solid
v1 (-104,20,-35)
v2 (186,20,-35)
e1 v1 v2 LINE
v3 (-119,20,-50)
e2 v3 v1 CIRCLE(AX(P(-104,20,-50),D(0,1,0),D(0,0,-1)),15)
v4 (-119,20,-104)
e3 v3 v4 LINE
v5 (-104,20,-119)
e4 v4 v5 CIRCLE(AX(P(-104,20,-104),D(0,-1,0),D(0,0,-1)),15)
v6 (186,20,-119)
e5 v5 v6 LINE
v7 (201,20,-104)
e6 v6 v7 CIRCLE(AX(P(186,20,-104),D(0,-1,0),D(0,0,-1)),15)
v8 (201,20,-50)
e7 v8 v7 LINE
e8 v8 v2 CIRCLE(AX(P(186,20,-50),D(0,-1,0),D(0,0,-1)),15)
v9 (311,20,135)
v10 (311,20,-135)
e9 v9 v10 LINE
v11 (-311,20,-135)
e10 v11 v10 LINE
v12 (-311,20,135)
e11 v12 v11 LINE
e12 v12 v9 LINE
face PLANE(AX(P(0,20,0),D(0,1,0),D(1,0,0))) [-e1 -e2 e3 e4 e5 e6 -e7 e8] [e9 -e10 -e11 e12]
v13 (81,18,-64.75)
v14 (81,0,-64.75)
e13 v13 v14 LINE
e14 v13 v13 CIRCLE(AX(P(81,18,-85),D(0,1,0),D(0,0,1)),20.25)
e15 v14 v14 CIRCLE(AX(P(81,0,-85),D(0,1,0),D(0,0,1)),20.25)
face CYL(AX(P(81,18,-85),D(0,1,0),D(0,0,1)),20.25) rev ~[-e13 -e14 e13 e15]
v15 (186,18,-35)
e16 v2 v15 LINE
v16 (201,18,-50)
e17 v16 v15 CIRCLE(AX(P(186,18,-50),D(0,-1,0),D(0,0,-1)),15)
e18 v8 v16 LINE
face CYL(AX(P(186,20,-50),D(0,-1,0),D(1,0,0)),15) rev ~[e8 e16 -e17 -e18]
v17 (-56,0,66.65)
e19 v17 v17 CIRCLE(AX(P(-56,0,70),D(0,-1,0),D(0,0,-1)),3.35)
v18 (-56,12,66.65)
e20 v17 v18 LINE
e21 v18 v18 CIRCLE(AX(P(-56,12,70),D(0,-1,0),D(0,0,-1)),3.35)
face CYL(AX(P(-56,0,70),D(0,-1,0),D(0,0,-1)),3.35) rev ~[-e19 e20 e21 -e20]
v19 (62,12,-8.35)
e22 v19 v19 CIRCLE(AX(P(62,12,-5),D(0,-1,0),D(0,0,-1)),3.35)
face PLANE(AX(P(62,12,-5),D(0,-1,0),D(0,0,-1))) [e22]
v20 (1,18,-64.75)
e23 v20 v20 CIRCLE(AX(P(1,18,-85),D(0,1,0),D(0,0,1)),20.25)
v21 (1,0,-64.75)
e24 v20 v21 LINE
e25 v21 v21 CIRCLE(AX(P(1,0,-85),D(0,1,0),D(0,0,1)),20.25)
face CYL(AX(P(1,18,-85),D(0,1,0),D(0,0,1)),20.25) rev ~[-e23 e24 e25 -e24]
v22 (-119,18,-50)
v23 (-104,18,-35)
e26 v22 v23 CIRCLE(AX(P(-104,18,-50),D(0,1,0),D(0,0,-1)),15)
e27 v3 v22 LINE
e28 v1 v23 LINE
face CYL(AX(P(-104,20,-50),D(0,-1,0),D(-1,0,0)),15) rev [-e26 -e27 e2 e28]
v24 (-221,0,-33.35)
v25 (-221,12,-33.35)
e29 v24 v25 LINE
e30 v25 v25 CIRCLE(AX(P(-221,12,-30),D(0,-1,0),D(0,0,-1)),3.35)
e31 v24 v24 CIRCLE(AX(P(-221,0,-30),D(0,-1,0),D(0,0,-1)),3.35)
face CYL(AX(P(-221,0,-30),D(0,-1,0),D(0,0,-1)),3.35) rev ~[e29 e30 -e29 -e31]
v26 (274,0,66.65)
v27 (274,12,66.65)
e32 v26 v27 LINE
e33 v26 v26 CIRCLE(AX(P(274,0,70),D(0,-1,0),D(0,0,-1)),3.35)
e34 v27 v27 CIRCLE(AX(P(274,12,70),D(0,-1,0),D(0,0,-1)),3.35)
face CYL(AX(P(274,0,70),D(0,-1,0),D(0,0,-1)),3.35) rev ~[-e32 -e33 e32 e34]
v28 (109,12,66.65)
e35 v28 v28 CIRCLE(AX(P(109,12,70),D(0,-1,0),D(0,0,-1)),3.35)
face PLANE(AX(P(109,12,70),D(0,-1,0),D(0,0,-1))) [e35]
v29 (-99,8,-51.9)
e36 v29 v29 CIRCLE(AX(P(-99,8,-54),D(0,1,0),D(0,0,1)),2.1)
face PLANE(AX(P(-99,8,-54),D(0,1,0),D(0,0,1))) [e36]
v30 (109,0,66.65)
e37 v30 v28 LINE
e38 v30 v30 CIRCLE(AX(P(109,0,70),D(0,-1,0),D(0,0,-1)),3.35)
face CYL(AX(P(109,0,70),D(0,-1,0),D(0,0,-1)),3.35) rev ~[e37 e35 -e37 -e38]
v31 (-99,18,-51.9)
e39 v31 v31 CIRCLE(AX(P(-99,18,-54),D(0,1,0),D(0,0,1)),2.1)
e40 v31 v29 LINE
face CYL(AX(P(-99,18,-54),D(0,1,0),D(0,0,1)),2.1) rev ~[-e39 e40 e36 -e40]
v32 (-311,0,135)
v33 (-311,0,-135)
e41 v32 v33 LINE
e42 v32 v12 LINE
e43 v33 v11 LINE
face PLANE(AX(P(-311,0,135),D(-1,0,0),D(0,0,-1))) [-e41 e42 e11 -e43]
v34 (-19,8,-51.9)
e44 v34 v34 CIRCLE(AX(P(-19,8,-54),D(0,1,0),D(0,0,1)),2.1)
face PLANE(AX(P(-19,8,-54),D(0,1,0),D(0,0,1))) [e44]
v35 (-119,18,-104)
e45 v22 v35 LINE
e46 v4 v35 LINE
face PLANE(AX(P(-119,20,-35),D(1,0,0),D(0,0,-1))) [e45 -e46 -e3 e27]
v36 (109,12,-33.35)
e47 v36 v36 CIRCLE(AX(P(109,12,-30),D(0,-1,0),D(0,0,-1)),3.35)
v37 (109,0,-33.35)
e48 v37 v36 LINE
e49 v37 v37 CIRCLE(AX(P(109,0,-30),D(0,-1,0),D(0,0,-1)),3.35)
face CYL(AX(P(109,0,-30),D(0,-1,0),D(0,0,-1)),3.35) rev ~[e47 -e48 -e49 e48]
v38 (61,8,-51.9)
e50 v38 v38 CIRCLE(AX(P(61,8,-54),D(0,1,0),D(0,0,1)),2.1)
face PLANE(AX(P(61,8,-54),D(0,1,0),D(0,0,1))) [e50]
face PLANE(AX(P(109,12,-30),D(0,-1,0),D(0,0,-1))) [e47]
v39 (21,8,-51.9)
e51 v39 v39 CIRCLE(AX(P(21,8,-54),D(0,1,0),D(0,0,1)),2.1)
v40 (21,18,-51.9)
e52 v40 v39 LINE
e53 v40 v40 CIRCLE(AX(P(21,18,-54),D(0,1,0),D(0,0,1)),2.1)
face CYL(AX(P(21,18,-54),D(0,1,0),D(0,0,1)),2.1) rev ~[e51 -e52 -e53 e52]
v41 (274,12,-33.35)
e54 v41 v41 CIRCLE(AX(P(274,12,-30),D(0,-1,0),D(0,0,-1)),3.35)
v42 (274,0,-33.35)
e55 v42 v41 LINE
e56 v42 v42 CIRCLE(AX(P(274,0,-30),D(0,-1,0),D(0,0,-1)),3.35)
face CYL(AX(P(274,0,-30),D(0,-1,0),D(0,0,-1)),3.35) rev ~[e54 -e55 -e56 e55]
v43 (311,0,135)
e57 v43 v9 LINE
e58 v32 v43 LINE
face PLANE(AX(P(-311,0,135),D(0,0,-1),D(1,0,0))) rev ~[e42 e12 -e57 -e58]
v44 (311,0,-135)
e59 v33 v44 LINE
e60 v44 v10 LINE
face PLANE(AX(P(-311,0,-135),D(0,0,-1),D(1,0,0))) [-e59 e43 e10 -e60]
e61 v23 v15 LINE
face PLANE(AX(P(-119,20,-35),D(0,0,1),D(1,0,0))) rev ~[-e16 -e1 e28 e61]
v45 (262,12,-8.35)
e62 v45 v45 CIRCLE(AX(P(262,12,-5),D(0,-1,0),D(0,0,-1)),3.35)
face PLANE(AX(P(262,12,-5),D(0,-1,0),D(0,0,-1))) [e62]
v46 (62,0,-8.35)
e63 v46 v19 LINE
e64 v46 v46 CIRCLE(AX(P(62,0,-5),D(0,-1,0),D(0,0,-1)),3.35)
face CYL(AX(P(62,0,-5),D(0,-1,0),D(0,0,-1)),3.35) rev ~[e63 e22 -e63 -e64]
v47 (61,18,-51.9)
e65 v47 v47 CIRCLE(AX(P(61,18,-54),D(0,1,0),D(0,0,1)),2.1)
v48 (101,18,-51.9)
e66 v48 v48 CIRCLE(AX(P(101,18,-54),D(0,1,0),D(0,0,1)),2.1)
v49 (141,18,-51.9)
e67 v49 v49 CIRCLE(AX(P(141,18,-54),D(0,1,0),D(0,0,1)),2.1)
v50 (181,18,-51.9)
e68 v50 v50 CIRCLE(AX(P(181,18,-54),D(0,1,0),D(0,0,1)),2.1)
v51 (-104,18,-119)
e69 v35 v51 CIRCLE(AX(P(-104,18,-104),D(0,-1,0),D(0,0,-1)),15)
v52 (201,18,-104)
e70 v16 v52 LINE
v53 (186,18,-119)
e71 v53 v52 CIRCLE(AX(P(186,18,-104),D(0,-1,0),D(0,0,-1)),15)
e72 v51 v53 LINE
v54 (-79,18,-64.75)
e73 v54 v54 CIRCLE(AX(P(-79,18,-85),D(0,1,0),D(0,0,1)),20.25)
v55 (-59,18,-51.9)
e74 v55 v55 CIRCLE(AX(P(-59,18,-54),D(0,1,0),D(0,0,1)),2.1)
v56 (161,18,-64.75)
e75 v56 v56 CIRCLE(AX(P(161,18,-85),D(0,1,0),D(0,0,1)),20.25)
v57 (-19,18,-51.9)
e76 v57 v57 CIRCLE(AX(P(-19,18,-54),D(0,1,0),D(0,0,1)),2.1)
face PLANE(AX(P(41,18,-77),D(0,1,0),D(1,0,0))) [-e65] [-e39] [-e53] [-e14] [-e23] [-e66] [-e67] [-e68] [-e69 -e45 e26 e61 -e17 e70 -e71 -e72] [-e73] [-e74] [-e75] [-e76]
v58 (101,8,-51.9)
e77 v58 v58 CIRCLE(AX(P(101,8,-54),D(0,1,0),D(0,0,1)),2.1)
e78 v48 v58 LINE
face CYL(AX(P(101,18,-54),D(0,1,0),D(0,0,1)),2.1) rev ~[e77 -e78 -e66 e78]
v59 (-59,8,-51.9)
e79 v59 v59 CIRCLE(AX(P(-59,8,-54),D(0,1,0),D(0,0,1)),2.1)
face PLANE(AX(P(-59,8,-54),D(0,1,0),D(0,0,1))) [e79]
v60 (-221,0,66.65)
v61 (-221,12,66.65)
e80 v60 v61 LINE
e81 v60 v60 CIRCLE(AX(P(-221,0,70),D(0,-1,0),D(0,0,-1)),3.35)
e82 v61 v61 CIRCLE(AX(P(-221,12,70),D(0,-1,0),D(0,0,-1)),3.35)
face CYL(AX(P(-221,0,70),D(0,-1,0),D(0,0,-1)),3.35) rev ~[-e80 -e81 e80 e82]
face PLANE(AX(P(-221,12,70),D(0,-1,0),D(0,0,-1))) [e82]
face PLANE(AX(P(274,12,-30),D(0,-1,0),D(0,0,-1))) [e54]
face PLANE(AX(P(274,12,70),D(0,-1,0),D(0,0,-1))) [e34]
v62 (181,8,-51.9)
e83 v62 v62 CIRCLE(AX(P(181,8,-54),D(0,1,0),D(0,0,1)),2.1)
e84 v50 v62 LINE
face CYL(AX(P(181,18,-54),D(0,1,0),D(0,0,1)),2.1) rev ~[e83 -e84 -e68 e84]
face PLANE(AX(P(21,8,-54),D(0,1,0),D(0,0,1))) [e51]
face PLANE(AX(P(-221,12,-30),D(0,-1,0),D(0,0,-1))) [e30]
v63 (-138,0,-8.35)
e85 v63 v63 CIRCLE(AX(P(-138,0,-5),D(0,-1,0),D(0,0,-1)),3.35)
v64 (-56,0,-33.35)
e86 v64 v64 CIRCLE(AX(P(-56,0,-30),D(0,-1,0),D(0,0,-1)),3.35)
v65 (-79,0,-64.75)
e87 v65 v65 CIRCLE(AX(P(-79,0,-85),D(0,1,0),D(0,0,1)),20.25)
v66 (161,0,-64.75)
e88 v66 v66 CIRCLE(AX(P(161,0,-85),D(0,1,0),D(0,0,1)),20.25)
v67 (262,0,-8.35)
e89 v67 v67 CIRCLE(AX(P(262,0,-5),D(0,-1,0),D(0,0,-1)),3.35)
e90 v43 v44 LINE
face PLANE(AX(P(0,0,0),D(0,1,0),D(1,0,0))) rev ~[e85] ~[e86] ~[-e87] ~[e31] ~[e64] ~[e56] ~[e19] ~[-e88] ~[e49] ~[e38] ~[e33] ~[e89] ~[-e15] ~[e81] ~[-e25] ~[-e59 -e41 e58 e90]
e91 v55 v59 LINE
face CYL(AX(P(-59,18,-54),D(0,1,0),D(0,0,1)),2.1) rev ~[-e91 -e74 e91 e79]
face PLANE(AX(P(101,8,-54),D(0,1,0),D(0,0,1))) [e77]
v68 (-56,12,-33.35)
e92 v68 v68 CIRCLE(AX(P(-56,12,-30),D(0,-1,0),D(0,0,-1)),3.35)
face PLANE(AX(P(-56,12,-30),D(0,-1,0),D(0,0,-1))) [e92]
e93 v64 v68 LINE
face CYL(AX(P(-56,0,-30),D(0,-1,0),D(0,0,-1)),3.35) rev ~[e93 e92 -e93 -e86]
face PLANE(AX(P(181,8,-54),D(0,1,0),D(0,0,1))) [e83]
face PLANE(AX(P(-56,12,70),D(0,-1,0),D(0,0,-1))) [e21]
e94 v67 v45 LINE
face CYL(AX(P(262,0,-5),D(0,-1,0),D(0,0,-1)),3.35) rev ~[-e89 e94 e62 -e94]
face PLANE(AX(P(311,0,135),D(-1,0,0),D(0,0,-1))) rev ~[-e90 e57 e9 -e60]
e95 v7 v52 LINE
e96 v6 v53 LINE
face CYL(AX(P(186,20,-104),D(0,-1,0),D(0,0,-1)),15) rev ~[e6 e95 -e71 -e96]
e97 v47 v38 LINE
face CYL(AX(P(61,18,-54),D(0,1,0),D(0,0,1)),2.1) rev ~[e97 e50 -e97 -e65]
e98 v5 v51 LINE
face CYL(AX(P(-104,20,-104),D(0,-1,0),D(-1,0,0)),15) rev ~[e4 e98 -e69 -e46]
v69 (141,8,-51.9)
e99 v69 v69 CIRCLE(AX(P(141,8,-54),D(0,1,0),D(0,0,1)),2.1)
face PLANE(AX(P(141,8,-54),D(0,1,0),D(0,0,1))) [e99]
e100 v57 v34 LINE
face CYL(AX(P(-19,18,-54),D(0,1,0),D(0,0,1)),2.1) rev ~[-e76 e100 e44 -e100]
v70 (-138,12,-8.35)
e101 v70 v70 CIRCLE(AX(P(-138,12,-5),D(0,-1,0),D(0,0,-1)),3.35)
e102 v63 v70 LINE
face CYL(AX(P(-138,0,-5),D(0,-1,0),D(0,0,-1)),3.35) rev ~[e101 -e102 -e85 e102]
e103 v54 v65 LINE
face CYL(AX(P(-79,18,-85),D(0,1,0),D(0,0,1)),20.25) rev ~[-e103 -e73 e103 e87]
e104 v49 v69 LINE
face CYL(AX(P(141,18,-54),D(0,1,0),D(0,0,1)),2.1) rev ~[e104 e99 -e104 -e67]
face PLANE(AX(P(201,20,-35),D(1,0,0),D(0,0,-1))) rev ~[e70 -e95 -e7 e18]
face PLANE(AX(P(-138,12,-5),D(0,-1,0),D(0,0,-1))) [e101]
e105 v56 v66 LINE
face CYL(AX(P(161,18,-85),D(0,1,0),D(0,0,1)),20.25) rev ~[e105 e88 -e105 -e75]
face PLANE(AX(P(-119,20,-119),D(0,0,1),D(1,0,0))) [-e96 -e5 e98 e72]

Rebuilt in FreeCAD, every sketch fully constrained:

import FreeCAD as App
import Part
import Sketcher
from FreeCAD import Vector
Q = App.Units.Quantity


def edges_at(feature, points):
    """Names of the edges that pass closest to the given points."""
    edges = feature.Shape.Edges
    near = lambda p: min(range(len(edges)), key=lambda i: edges[i].distToShape(Part.Vertex(*p))[0])
    return sorted({f"Edge{near(p) + 1}" for p in points})


def add_polygon(sketch, points):
    """Adds a closed chain of lines whose ends are joined by coincident constraints."""
    first, n = sketch.GeometryCount, len(points)
    for a, b in zip(points, points[1:] + points[:1]):
        sketch.addGeometry(Part.LineSegment(App.Vector(*a, 0), App.Vector(*b, 0)), False)
    for i in range(n):
        sketch.addConstraint(Sketcher.Constraint("Coincident", first + i, 2, first + (i + 1) % n, 1))

doc = App.newDocument("Part")
body = doc.addObject("PartDesign::Body", "Body")

# Sketch on XZ plane
sketch1 = body.newObject("Sketcher::SketchObject", "Sketch")
sketch1.AttachmentSupport = (doc.getObject("XZ_Plane"), [""])
sketch1.MapMode = "FlatFace"
add_polygon(sketch1, [(-311, -135), (-311, 135), (311, 135), (311, -135)])  # lines 0-3
sketch1.addConstraint([
    Sketcher.Constraint("Vertical", 0),
    Sketcher.Constraint("Horizontal", 1),
    Sketcher.Constraint("Vertical", 2),
    Sketcher.Constraint("Horizontal", 3),
    Sketcher.Constraint("Symmetric", 0, 2, 2, 2, -1, 1),
    Sketcher.Constraint("DistanceX", 1, 1, 1, 2, Q("622 mm")),
    Sketcher.Constraint("DistanceY", 0, 1, 0, 2, Q("270 mm")),
])
pad1 = body.newObject("PartDesign::Pad", "Pad")
pad1.Profile = sketch1
pad1.Length = 20
pad1.Reversed = True

# Sketch on XZ plane
sketch2 = body.newObject("Sketcher::SketchObject", "Sketch001")
sketch2.AttachmentSupport = (doc.getObject("XZ_Plane"), [""])
sketch2.MapMode = "FlatFace"
sketch2.AttachmentOffset = App.Placement(Vector(0, 0, -20), App.Rotation())
add_polygon(sketch2, [(-119, -119), (-119, -35), (201, -35), (201, -119)])  # lines 0-3
sketch2.addConstraint([
    Sketcher.Constraint("Vertical", 0),
    Sketcher.Constraint("Horizontal", 1),
    Sketcher.Constraint("Vertical", 2),
    Sketcher.Constraint("Horizontal", 3),
    Sketcher.Constraint("DistanceX", 1, 1, 1, 2, Q("320 mm")),
    Sketcher.Constraint("DistanceY", 0, 1, 0, 2, Q("84 mm")),
    Sketcher.Constraint("DistanceX", 0, 2, -1, 1, Q("119 mm")),
    Sketcher.Constraint("DistanceY", 0, 2, -1, 1, Q("35 mm")),
])
pocket1 = body.newObject("PartDesign::Pocket", "Pocket")
pocket1.Profile = sketch2
pocket1.Length = 2
pocket1.Reversed = True

# Sketch on XZ plane
sketch3 = body.newObject("Sketcher::SketchObject", "Sketch002")
sketch3.AttachmentSupport = (doc.getObject("XZ_Plane"), [""])
sketch3.MapMode = "FlatFace"
sketch3.AttachmentOffset = App.Placement(Vector(0, 0, -18), App.Rotation())
sketch3.addGeometry(Part.Circle(Vector(-79, -85, 0), Vector(0, 0, 1), 20), False)
sketch3.addConstraint([
    Sketcher.Constraint("Diameter", 0, Q("40.5 mm")),
    Sketcher.Constraint("DistanceX", 0, 3, -1, 1, Q("79 mm")),
    Sketcher.Constraint("DistanceY", 0, 3, -1, 1, Q("85 mm")),
])
pocket2 = body.newObject("PartDesign::Pocket", "Pocket001")
pocket2.Profile = sketch3
pocket2.Type = "UpToFirst"
pocket2.Reversed = True

# Sketch on XZ plane
sketch4 = body.newObject("Sketcher::SketchObject", "Sketch003")
sketch4.AttachmentSupport = (doc.getObject("XZ_Plane"), [""])
sketch4.MapMode = "FlatFace"
sketch4.AttachmentOffset = App.Placement(Vector(0, 0, -18), App.Rotation())
sketch4.addGeometry(Part.Circle(Vector(1, -85, 0), Vector(0, 0, 1), 20), False)
sketch4.addConstraint([
    Sketcher.Constraint("Diameter", 0, Q("40.5 mm")),
    Sketcher.Constraint("DistanceX", -1, 1, 0, 3, Q("1 mm")),
    Sketcher.Constraint("DistanceY", 0, 3, -1, 1, Q("85 mm")),
])
pocket3 = body.newObject("PartDesign::Pocket", "Pocket002")
pocket3.Profile = sketch4
pocket3.Type = "UpToFirst"
pocket3.Reversed = True

# Sketch on XZ plane
sketch5 = body.newObject("Sketcher::SketchObject", "Sketch004")
sketch5.AttachmentSupport = (doc.getObject("XZ_Plane"), [""])
sketch5.MapMode = "FlatFace"
sketch5.AttachmentOffset = App.Placement(Vector(0, 0, -18), App.Rotation())
sketch5.addGeometry(Part.Circle(Vector(81, -85, 0), Vector(0, 0, 1), 20), False)
sketch5.addConstraint([
    Sketcher.Constraint("Diameter", 0, Q("40.5 mm")),
    Sketcher.Constraint("DistanceX", -1, 1, 0, 3, Q("81 mm")),
    Sketcher.Constraint("DistanceY", 0, 3, -1, 1, Q("85 mm")),
])
pocket4 = body.newObject("PartDesign::Pocket", "Pocket003")
pocket4.Profile = sketch5
pocket4.Type = "UpToFirst"
pocket4.Reversed = True

# Sketch on XZ plane
sketch6 = body.newObject("Sketcher::SketchObject", "Sketch005")
sketch6.AttachmentSupport = (doc.getObject("XZ_Plane"), [""])
sketch6.MapMode = "FlatFace"
sketch6.AttachmentOffset = App.Placement(Vector(0, 0, -18), App.Rotation())
sketch6.addGeometry(Part.Circle(Vector(161, -85, 0), Vector(0, 0, 1), 20), False)
sketch6.addConstraint([
    Sketcher.Constraint("Diameter", 0, Q("40.5 mm")),
    Sketcher.Constraint("DistanceX", -1, 1, 0, 3, Q("161 mm")),
    Sketcher.Constraint("DistanceY", 0, 3, -1, 1, Q("85 mm")),
])
pocket5 = body.newObject("PartDesign::Pocket", "Pocket004")
pocket5.Profile = sketch6
pocket5.Type = "UpToFirst"
pocket5.Reversed = True

# Sketch on XZ plane
sketch7 = body.newObject("Sketcher::SketchObject", "Sketch006")
sketch7.AttachmentSupport = (doc.getObject("XZ_Plane"), [""])
sketch7.MapMode = "FlatFace"
sketch7.AttachmentOffset = App.Placement(Vector(0, 0, -18), App.Rotation())
sketch7.addGeometry([
    Part.Circle(Vector(-99, -54, 0), Vector(0, 0, 1), 2.1),  # 0
    Part.Circle(Vector(-79, -85, 0), Vector(0, 0, 1), 20.2),  # 1
    Part.Circle(Vector(-59, -54, 0), Vector(0, 0, 1), 2.1),  # 2
    Part.Circle(Vector(-19, -54, 0), Vector(0, 0, 1), 2.1),  # 3
    Part.Circle(Vector(21, -54, 0), Vector(0, 0, 1), 2.1),  # 4
    Part.Circle(Vector(61, -54, 0), Vector(0, 0, 1), 2.1),  # 5
    Part.Circle(Vector(101, -54, 0), Vector(0, 0, 1), 2.1),  # 6
    Part.Circle(Vector(141, -54, 0), Vector(0, 0, 1), 2.1),  # 7
    Part.Circle(Vector(181, -54, 0), Vector(0, 0, 1), 2.1),  # 8
], False)
sketch7.addConstraint([
    Sketcher.Constraint("Equal", 0, 2),
    Sketcher.Constraint("Equal", 2, 3),
    Sketcher.Constraint("Equal", 3, 4),
    Sketcher.Constraint("Equal", 4, 5),
    Sketcher.Constraint("Equal", 5, 6),
    Sketcher.Constraint("Equal", 6, 7),
    Sketcher.Constraint("Equal", 7, 8),
    Sketcher.Constraint("Horizontal", 0, 3, 2, 3),
    Sketcher.Constraint("Horizontal", 2, 3, 3, 3),
    Sketcher.Constraint("Horizontal", 3, 3, 4, 3),
    Sketcher.Constraint("Horizontal", 4, 3, 5, 3),
    Sketcher.Constraint("Horizontal", 5, 3, 6, 3),
    Sketcher.Constraint("Horizontal", 6, 3, 7, 3),
    Sketcher.Constraint("Horizontal", 7, 3, 8, 3),
    Sketcher.Constraint("Diameter", 0, Q("4.2 mm")),
    Sketcher.Constraint("Diameter", 1, Q("40.5 mm")),
    Sketcher.Constraint("DistanceX", 0, 3, -1, 1, Q("99 mm")),
    Sketcher.Constraint("DistanceY", 0, 3, -1, 1, Q("54 mm")),
    Sketcher.Constraint("DistanceX", 1, 3, -1, 1, Q("79 mm")),
    Sketcher.Constraint("DistanceY", 1, 3, -1, 1, Q("85 mm")),
    Sketcher.Constraint("DistanceX", 2, 3, -1, 1, Q("59 mm")),
    Sketcher.Constraint("DistanceX", 3, 3, -1, 1, Q("19 mm")),
    Sketcher.Constraint("DistanceX", -1, 1, 4, 3, Q("21 mm")),
    Sketcher.Constraint("DistanceX", -1, 1, 5, 3, Q("61 mm")),
    Sketcher.Constraint("DistanceX", -1, 1, 6, 3, Q("101 mm")),
    Sketcher.Constraint("DistanceX", -1, 1, 7, 3, Q("141 mm")),
    Sketcher.Constraint("DistanceX", -1, 1, 8, 3, Q("181 mm")),
])
pocket6 = body.newObject("PartDesign::Pocket", "Pocket005")
pocket6.Profile = sketch7
pocket6.Length = 10
pocket6.Reversed = True
doc.recompute()

fillet = body.newObject("PartDesign::Fillet", "Fillet")
fillet.Base = (pocket6, edges_at(pocket6, [
    (-119, 19, -35),
    (-119, 19, -119),
    (201, 19, -119),
    (201, 19, -35),
]))
fillet.Radius = 15

# Sketch on XZ plane
sketch8 = body.newObject("Sketcher::SketchObject", "Sketch007")
sketch8.AttachmentSupport = (doc.getObject("XZ_Plane"), [""])
sketch8.MapMode = "FlatFace"
sketch8.addGeometry([
    Part.Circle(Vector(274, -30, 0), Vector(0, 0, 1), 3.4),  # 0
    Part.Circle(Vector(262, -5, 0), Vector(0, 0, 1), 3.4),  # 1
    Part.Circle(Vector(109, -30, 0), Vector(0, 0, 1), 3.4),  # 2
    Part.Circle(Vector(-56, -30, 0), Vector(0, 0, 1), 3.4),  # 3
    Part.Circle(Vector(-221, -30, 0), Vector(0, 0, 1), 3.4),  # 4
    Part.Circle(Vector(-138, -5, 0), Vector(0, 0, 1), 3.4),  # 5
    Part.Circle(Vector(62, -5, 0), Vector(0, 0, 1), 3.4),  # 6
    Part.Circle(Vector(274, 70, 0), Vector(0, 0, 1), 3.4),  # 7
    Part.Circle(Vector(109, 70, 0), Vector(0, 0, 1), 3.4),  # 8
    Part.Circle(Vector(-56, 70, 0), Vector(0, 0, 1), 3.4),  # 9
    Part.Circle(Vector(-221, 70, 0), Vector(0, 0, 1), 3.4),  # 10
], False)
sketch8.addConstraint([
    Sketcher.Constraint("Equal", 0, 1),
    Sketcher.Constraint("Equal", 1, 2),
    Sketcher.Constraint("Equal", 2, 3),
    Sketcher.Constraint("Equal", 3, 4),
    Sketcher.Constraint("Equal", 4, 5),
    Sketcher.Constraint("Equal", 5, 6),
    Sketcher.Constraint("Equal", 6, 7),
    Sketcher.Constraint("Equal", 7, 8),
    Sketcher.Constraint("Equal", 8, 9),
    Sketcher.Constraint("Equal", 9, 10),
    Sketcher.Constraint("Horizontal", 0, 3, 2, 3),
    Sketcher.Constraint("Horizontal", 2, 3, 3, 3),
    Sketcher.Constraint("Horizontal", 3, 3, 4, 3),
    Sketcher.Constraint("Horizontal", 1, 3, 5, 3),
    Sketcher.Constraint("Horizontal", 5, 3, 6, 3),
    Sketcher.Constraint("Horizontal", 7, 3, 8, 3),
    Sketcher.Constraint("Horizontal", 8, 3, 9, 3),
    Sketcher.Constraint("Horizontal", 9, 3, 10, 3),
    Sketcher.Constraint("Vertical", 0, 3, 7, 3),
    Sketcher.Constraint("Vertical", 2, 3, 8, 3),
    Sketcher.Constraint("Vertical", 3, 3, 9, 3),
    Sketcher.Constraint("Vertical", 4, 3, 10, 3),
    Sketcher.Constraint("Diameter", 0, Q("6.7 mm")),
    Sketcher.Constraint("DistanceX", -1, 1, 0, 3, Q("274 mm")),
    Sketcher.Constraint("DistanceY", 0, 3, -1, 1, Q("30 mm")),
    Sketcher.Constraint("DistanceX", -1, 1, 1, 3, Q("262 mm")),
    Sketcher.Constraint("DistanceY", 1, 3, -1, 1, Q("5 mm")),
    Sketcher.Constraint("DistanceX", -1, 1, 2, 3, Q("109 mm")),
    Sketcher.Constraint("DistanceX", 3, 3, -1, 1, Q("56 mm")),
    Sketcher.Constraint("DistanceX", 4, 3, -1, 1, Q("221 mm")),
    Sketcher.Constraint("DistanceX", 5, 3, -1, 1, Q("138 mm")),
    Sketcher.Constraint("DistanceX", -1, 1, 6, 3, Q("62 mm")),
    Sketcher.Constraint("DistanceY", -1, 1, 7, 3, Q("70 mm")),
])
pocket7 = body.newObject("PartDesign::Pocket", "Pocket006")
pocket7.Profile = sketch8
pocket7.Length = 12

doc.recompute()
